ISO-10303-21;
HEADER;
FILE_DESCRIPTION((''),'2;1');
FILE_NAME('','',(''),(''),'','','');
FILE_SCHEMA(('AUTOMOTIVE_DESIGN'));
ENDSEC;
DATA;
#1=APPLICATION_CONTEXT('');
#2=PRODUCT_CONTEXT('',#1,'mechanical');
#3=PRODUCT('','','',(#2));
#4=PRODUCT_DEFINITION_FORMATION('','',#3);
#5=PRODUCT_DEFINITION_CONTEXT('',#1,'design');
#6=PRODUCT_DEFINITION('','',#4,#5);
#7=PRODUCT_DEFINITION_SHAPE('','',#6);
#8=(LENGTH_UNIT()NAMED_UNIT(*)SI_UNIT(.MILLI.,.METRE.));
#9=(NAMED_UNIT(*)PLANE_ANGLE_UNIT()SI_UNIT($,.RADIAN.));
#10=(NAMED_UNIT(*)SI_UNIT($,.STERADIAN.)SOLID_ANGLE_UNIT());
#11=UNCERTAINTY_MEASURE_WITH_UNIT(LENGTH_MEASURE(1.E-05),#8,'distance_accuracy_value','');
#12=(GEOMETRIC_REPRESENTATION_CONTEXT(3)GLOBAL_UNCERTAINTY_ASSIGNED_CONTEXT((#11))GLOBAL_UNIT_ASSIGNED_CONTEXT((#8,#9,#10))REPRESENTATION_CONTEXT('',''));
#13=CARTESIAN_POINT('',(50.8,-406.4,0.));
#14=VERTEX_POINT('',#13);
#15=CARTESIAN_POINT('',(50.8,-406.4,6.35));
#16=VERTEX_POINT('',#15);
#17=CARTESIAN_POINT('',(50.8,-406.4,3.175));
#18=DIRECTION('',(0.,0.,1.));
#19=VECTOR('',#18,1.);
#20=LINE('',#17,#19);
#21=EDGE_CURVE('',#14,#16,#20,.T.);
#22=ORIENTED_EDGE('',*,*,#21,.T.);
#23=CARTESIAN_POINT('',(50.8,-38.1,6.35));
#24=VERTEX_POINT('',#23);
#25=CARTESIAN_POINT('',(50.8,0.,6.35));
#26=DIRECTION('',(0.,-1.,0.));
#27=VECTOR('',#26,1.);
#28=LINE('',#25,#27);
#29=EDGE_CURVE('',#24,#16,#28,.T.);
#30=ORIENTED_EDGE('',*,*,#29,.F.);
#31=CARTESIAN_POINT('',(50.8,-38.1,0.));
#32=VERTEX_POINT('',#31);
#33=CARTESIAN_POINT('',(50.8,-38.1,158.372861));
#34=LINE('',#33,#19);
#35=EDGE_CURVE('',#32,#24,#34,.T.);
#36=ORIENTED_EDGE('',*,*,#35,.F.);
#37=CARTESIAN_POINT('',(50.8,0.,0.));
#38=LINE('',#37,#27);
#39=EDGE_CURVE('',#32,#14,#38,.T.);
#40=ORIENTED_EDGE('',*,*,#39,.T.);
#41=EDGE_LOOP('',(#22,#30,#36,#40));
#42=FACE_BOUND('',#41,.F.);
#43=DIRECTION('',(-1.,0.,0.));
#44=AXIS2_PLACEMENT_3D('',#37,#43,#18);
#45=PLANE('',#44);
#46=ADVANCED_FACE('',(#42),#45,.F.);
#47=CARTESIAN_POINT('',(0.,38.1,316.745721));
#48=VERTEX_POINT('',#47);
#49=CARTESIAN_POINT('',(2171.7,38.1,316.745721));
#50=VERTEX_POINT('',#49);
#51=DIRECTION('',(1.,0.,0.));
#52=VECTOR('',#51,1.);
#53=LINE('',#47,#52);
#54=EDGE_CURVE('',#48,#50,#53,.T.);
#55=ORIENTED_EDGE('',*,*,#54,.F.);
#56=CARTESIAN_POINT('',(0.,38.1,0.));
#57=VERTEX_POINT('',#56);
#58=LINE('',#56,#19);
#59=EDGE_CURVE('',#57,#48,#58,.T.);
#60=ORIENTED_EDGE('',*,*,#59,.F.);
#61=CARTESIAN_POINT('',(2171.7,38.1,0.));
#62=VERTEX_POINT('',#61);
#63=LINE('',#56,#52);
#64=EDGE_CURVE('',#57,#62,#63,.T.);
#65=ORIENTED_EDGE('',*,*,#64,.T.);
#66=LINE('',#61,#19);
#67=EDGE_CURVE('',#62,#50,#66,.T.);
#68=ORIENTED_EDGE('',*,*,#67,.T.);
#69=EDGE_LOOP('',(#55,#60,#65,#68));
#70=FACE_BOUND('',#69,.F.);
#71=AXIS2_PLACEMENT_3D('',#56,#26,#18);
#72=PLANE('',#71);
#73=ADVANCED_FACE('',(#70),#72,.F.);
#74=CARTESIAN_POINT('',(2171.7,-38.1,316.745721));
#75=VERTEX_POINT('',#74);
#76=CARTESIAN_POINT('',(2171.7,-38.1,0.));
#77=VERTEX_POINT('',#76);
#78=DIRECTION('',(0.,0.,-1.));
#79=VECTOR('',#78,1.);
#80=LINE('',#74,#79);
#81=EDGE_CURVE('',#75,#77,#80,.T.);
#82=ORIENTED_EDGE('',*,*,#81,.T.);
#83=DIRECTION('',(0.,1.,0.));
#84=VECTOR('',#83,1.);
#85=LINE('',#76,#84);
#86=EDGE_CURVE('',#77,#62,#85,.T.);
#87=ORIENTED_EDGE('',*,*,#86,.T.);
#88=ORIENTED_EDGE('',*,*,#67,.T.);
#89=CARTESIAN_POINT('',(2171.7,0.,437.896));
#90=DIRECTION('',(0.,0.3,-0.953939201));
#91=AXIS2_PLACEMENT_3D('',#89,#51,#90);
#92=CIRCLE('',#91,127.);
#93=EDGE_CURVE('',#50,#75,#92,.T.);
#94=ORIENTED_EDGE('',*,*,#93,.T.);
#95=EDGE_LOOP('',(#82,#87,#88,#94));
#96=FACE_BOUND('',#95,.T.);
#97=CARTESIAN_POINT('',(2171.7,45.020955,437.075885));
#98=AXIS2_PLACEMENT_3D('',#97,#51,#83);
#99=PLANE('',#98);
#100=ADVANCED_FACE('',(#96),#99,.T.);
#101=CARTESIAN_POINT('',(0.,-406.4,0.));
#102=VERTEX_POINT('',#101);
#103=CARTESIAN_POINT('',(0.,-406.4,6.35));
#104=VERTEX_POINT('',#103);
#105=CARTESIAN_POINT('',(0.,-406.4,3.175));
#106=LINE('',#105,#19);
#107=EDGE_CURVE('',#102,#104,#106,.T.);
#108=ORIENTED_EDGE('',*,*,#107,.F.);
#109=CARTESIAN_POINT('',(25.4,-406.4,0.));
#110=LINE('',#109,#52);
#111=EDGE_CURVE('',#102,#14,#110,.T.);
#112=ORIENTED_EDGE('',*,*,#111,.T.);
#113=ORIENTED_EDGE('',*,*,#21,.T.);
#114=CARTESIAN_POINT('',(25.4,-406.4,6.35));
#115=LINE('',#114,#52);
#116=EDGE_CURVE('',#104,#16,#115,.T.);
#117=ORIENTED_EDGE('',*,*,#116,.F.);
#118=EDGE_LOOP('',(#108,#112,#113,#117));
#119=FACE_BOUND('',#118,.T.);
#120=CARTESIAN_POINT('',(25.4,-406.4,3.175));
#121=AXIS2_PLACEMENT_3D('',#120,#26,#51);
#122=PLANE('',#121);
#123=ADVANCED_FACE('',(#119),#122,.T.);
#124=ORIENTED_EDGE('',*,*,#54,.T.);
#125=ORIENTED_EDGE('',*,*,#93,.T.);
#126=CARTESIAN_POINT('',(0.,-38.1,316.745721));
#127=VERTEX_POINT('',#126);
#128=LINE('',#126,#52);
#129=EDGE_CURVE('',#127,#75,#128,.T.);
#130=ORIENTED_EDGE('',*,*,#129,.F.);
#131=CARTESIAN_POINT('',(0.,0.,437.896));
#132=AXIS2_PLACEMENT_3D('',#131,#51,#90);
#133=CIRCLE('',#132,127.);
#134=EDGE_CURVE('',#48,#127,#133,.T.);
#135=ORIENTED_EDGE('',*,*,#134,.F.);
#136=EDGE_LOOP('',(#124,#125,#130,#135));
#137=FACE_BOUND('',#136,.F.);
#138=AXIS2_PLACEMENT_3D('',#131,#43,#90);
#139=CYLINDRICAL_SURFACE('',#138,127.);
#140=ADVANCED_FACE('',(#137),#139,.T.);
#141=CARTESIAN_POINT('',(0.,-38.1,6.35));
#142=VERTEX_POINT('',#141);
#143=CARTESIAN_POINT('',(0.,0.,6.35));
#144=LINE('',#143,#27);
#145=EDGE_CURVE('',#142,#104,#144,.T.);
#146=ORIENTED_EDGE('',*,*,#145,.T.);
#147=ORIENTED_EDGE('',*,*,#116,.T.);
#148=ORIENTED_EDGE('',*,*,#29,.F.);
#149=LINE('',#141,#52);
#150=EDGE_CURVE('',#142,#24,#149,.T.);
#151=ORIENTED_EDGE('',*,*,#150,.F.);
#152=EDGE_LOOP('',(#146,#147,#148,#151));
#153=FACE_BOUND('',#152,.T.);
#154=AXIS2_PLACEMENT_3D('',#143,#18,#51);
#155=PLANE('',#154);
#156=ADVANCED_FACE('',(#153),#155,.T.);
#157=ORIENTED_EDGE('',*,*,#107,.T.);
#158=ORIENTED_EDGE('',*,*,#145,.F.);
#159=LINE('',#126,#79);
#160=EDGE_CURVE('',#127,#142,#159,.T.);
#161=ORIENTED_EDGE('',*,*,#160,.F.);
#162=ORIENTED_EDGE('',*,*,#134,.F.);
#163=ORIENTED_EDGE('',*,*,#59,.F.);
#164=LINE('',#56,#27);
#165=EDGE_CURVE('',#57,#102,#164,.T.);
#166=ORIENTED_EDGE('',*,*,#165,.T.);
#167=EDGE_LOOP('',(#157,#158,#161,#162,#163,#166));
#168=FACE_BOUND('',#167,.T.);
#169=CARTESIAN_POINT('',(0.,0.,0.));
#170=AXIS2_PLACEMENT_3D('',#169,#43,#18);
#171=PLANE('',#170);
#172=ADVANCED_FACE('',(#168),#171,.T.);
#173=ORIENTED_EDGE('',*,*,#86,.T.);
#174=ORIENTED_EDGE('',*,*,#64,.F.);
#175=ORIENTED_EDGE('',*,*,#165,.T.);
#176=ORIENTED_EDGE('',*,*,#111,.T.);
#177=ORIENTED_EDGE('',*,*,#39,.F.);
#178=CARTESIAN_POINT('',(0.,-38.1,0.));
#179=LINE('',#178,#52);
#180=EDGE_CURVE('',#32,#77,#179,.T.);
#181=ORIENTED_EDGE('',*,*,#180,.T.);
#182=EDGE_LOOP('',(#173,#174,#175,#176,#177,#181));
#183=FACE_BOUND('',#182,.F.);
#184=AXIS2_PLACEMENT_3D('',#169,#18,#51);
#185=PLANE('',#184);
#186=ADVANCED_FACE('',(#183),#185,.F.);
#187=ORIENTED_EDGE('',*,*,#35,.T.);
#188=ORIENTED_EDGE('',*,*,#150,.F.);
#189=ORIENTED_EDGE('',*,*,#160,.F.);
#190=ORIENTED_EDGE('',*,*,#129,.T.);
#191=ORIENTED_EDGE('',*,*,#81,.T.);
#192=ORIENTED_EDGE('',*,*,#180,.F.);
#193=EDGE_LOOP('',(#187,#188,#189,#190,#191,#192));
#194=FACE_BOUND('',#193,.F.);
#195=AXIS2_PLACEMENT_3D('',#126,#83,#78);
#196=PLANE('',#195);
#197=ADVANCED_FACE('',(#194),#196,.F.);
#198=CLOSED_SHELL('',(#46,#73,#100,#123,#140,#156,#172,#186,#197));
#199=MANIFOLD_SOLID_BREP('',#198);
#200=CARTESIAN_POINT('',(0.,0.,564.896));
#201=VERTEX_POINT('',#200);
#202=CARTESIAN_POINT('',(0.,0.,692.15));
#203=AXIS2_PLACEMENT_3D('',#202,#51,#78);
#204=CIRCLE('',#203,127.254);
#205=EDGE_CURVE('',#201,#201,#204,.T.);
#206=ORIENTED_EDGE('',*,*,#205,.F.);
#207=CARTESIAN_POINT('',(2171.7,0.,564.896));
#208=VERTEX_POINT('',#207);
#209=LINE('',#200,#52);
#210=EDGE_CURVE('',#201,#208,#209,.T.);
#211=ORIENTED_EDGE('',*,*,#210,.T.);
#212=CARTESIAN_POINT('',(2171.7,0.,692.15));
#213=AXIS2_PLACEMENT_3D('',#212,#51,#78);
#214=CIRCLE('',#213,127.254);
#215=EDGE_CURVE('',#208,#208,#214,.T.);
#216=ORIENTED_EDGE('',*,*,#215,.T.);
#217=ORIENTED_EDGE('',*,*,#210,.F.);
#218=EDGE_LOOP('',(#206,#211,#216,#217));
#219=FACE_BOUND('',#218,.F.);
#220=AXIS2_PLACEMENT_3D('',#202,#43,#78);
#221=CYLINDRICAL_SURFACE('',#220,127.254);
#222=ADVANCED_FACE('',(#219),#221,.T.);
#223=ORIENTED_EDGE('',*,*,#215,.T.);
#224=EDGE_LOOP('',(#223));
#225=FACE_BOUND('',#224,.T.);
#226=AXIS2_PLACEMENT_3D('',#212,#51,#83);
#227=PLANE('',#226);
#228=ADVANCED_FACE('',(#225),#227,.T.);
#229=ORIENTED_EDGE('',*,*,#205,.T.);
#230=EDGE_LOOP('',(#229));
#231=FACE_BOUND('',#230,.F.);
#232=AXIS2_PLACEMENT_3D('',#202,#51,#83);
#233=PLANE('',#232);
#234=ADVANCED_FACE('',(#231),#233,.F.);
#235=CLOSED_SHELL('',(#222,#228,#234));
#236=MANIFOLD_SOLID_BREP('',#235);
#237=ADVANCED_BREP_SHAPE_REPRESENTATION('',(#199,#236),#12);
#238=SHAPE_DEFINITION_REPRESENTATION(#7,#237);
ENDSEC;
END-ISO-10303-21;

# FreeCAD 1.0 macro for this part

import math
import FreeCAD as App
import Part
import Sketcher
Q = App.Units.Quantity


def add_polygon(sketch, points):
    """Adds a closed chain of lines whose ends are joined by coincident constraints."""
    first, n = sketch.GeometryCount, len(points)
    for a, b in zip(points, points[1:] + points[:1]):
        sketch.addGeometry(Part.LineSegment(App.Vector(*a, 0), App.Vector(*b, 0)), False)
    for i in range(n):
        sketch.addConstraint(Sketcher.Constraint("Coincident", first + i, 2, first + (i + 1) % n, 1))

doc = App.newDocument("Part")
body = doc.addObject("PartDesign::Body", "Body")

# Sketch on YZ plane
sketch1 = body.newObject("Sketcher::SketchObject", "Sketch")
sketch1.AttachmentSupport = (doc.getObject("YZ_Plane"), [""])
sketch1.MapMode = "FlatFace"
sketch1.addGeometry(Part.Circle(App.Vector(0, 692.15, 0), App.Vector(0, 0, 1), 127.254), False)
sketch1.addConstraint([
    Sketcher.Constraint("PointOnObject", 0, 3, -2),
    Sketcher.Constraint("Diameter", 0, Q("10.02 in")),
    Sketcher.Constraint("DistanceY", -1, 1, 0, 3, Q("27.25 in")),
])
pad1 = body.newObject("PartDesign::Pad", "Pad")
pad1.Profile = sketch1
pad1.Length = Q("85.5 in")
body2 = doc.addObject("PartDesign::Body", "Body001")

# Sketch on YZ plane
sketch2 = body2.newObject("Sketcher::SketchObject", "Sketch001")
sketch2.AttachmentSupport = (doc.getObject("YZ_Plane001"), [""])
sketch2.MapMode = "FlatFace"
sketch2.addGeometry([
    Part.ArcOfCircle(Part.Circle(App.Vector(0, 437.896, 0), App.Vector(0, 0, 1), 127), math.radians(-72.542397), math.radians(252.542397)),
    Part.LineSegment(App.Vector(-38.1, 316.745721, 0), App.Vector(-38.1, 0, 0)),
    Part.LineSegment(App.Vector(-38.1, 0, 0), App.Vector(38.1, 0, 0)),
    Part.LineSegment(App.Vector(38.1, 0, 0), App.Vector(38.1, 316.745721, 0)),
], False)
sketch2.addConstraint([
    Sketcher.Constraint("Coincident", 0, 2, 1, 1),
    Sketcher.Constraint("Coincident", 1, 2, 2, 1),
    Sketcher.Constraint("Coincident", 2, 2, 3, 1),
    Sketcher.Constraint("Coincident", 3, 2, 0, 1),
    Sketcher.Constraint("Vertical", 1),
    Sketcher.Constraint("Horizontal", 2),
    Sketcher.Constraint("Vertical", 3),
    Sketcher.Constraint("Symmetric", 1, 2, 2, 2, -1, 1),
    Sketcher.Constraint("PointOnObject", 0, 3, -2),
    Sketcher.Constraint("Radius", 0, Q("5 in")),
    Sketcher.Constraint("DistanceX", 2, 1, 2, 2, Q("3 in")),
    Sketcher.Constraint("DistanceY", -1, 1, 0, 3, Q("17.24 in")),
])
pad2 = body2.newObject("PartDesign::Pad", "Pad001")
pad2.Profile = sketch2
pad2.Length = Q("85.5 in")

# Sketch on XZ plane
sketch3 = body2.newObject("Sketcher::SketchObject", "Sketch002")
sketch3.AttachmentSupport = (doc.getObject("XZ_Plane001"), [""])
sketch3.MapMode = "FlatFace"
add_polygon(sketch3, [(0, 6.35), (0, 0), (50.8, 0), (50.8, 6.35)])  # lines 0-3
sketch3.addConstraint([
    Sketcher.Constraint("Vertical", 0),
    Sketcher.Constraint("Horizontal", 1),
    Sketcher.Constraint("Vertical", 2),
    Sketcher.Constraint("Horizontal", 3),
    Sketcher.Constraint("Coincident", 0, 2, -1, 1),
    Sketcher.Constraint("DistanceX", 1, 1, 1, 2, Q("2 in")),
    Sketcher.Constraint("DistanceY", 0, 2, 0, 1, Q("0.25 in")),
])
pad3 = body2.newObject("PartDesign::Pad", "Pad002")
pad3.Profile = sketch3
pad3.Length = Q("16 in")

doc.recompute()
